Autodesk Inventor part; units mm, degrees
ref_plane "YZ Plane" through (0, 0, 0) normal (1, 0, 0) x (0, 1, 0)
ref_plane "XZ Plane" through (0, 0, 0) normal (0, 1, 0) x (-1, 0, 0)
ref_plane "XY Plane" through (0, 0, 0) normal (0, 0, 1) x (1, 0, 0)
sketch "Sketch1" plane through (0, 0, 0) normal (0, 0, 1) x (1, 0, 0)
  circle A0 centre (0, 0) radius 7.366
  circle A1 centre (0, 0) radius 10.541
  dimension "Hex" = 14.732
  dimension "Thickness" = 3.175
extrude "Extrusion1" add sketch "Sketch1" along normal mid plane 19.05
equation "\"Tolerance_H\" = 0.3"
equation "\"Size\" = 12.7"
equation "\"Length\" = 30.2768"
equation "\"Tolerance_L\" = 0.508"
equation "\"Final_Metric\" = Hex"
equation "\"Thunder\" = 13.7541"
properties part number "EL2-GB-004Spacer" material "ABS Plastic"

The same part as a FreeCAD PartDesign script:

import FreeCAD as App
import Part
import Sketcher

V = App.Vector
Q = App.Units.Quantity

doc = App.newDocument("Part")
body = doc.addObject("PartDesign::Body", "Body")

sketch1 = body.newObject("Sketcher::SketchObject", "Sketch")
sketch1.AttachmentSupport = (doc.getObject("XY_Plane"), [""])
sketch1.MapMode = "FlatFace"
sketch1.addGeometry(Part.Circle(V(0, 0, 0), V(0, 0, 1), 11), False)
sketch1.addGeometry(Part.Circle(V(0, 0, 0), V(0, 0, 1), 7), False)
sketch1.addConstraint(Sketcher.Constraint("Coincident", 0, 3, -1, 1))
sketch1.addConstraint(Sketcher.Constraint("Coincident", 1, 3, -1, 1))
sketch1.addConstraint(Sketcher.Constraint("Diameter", 1, Q("0.58 in")))
sketch1.addConstraint(Sketcher.Constraint("Diameter", 0, Q("0.83 in")))
pad1 = body.newObject("PartDesign::Pad", "Pad")
pad1.Profile = sketch1
pad1.Length = Q("0.75 in")
pad1.Midplane = True

doc.recompute()
